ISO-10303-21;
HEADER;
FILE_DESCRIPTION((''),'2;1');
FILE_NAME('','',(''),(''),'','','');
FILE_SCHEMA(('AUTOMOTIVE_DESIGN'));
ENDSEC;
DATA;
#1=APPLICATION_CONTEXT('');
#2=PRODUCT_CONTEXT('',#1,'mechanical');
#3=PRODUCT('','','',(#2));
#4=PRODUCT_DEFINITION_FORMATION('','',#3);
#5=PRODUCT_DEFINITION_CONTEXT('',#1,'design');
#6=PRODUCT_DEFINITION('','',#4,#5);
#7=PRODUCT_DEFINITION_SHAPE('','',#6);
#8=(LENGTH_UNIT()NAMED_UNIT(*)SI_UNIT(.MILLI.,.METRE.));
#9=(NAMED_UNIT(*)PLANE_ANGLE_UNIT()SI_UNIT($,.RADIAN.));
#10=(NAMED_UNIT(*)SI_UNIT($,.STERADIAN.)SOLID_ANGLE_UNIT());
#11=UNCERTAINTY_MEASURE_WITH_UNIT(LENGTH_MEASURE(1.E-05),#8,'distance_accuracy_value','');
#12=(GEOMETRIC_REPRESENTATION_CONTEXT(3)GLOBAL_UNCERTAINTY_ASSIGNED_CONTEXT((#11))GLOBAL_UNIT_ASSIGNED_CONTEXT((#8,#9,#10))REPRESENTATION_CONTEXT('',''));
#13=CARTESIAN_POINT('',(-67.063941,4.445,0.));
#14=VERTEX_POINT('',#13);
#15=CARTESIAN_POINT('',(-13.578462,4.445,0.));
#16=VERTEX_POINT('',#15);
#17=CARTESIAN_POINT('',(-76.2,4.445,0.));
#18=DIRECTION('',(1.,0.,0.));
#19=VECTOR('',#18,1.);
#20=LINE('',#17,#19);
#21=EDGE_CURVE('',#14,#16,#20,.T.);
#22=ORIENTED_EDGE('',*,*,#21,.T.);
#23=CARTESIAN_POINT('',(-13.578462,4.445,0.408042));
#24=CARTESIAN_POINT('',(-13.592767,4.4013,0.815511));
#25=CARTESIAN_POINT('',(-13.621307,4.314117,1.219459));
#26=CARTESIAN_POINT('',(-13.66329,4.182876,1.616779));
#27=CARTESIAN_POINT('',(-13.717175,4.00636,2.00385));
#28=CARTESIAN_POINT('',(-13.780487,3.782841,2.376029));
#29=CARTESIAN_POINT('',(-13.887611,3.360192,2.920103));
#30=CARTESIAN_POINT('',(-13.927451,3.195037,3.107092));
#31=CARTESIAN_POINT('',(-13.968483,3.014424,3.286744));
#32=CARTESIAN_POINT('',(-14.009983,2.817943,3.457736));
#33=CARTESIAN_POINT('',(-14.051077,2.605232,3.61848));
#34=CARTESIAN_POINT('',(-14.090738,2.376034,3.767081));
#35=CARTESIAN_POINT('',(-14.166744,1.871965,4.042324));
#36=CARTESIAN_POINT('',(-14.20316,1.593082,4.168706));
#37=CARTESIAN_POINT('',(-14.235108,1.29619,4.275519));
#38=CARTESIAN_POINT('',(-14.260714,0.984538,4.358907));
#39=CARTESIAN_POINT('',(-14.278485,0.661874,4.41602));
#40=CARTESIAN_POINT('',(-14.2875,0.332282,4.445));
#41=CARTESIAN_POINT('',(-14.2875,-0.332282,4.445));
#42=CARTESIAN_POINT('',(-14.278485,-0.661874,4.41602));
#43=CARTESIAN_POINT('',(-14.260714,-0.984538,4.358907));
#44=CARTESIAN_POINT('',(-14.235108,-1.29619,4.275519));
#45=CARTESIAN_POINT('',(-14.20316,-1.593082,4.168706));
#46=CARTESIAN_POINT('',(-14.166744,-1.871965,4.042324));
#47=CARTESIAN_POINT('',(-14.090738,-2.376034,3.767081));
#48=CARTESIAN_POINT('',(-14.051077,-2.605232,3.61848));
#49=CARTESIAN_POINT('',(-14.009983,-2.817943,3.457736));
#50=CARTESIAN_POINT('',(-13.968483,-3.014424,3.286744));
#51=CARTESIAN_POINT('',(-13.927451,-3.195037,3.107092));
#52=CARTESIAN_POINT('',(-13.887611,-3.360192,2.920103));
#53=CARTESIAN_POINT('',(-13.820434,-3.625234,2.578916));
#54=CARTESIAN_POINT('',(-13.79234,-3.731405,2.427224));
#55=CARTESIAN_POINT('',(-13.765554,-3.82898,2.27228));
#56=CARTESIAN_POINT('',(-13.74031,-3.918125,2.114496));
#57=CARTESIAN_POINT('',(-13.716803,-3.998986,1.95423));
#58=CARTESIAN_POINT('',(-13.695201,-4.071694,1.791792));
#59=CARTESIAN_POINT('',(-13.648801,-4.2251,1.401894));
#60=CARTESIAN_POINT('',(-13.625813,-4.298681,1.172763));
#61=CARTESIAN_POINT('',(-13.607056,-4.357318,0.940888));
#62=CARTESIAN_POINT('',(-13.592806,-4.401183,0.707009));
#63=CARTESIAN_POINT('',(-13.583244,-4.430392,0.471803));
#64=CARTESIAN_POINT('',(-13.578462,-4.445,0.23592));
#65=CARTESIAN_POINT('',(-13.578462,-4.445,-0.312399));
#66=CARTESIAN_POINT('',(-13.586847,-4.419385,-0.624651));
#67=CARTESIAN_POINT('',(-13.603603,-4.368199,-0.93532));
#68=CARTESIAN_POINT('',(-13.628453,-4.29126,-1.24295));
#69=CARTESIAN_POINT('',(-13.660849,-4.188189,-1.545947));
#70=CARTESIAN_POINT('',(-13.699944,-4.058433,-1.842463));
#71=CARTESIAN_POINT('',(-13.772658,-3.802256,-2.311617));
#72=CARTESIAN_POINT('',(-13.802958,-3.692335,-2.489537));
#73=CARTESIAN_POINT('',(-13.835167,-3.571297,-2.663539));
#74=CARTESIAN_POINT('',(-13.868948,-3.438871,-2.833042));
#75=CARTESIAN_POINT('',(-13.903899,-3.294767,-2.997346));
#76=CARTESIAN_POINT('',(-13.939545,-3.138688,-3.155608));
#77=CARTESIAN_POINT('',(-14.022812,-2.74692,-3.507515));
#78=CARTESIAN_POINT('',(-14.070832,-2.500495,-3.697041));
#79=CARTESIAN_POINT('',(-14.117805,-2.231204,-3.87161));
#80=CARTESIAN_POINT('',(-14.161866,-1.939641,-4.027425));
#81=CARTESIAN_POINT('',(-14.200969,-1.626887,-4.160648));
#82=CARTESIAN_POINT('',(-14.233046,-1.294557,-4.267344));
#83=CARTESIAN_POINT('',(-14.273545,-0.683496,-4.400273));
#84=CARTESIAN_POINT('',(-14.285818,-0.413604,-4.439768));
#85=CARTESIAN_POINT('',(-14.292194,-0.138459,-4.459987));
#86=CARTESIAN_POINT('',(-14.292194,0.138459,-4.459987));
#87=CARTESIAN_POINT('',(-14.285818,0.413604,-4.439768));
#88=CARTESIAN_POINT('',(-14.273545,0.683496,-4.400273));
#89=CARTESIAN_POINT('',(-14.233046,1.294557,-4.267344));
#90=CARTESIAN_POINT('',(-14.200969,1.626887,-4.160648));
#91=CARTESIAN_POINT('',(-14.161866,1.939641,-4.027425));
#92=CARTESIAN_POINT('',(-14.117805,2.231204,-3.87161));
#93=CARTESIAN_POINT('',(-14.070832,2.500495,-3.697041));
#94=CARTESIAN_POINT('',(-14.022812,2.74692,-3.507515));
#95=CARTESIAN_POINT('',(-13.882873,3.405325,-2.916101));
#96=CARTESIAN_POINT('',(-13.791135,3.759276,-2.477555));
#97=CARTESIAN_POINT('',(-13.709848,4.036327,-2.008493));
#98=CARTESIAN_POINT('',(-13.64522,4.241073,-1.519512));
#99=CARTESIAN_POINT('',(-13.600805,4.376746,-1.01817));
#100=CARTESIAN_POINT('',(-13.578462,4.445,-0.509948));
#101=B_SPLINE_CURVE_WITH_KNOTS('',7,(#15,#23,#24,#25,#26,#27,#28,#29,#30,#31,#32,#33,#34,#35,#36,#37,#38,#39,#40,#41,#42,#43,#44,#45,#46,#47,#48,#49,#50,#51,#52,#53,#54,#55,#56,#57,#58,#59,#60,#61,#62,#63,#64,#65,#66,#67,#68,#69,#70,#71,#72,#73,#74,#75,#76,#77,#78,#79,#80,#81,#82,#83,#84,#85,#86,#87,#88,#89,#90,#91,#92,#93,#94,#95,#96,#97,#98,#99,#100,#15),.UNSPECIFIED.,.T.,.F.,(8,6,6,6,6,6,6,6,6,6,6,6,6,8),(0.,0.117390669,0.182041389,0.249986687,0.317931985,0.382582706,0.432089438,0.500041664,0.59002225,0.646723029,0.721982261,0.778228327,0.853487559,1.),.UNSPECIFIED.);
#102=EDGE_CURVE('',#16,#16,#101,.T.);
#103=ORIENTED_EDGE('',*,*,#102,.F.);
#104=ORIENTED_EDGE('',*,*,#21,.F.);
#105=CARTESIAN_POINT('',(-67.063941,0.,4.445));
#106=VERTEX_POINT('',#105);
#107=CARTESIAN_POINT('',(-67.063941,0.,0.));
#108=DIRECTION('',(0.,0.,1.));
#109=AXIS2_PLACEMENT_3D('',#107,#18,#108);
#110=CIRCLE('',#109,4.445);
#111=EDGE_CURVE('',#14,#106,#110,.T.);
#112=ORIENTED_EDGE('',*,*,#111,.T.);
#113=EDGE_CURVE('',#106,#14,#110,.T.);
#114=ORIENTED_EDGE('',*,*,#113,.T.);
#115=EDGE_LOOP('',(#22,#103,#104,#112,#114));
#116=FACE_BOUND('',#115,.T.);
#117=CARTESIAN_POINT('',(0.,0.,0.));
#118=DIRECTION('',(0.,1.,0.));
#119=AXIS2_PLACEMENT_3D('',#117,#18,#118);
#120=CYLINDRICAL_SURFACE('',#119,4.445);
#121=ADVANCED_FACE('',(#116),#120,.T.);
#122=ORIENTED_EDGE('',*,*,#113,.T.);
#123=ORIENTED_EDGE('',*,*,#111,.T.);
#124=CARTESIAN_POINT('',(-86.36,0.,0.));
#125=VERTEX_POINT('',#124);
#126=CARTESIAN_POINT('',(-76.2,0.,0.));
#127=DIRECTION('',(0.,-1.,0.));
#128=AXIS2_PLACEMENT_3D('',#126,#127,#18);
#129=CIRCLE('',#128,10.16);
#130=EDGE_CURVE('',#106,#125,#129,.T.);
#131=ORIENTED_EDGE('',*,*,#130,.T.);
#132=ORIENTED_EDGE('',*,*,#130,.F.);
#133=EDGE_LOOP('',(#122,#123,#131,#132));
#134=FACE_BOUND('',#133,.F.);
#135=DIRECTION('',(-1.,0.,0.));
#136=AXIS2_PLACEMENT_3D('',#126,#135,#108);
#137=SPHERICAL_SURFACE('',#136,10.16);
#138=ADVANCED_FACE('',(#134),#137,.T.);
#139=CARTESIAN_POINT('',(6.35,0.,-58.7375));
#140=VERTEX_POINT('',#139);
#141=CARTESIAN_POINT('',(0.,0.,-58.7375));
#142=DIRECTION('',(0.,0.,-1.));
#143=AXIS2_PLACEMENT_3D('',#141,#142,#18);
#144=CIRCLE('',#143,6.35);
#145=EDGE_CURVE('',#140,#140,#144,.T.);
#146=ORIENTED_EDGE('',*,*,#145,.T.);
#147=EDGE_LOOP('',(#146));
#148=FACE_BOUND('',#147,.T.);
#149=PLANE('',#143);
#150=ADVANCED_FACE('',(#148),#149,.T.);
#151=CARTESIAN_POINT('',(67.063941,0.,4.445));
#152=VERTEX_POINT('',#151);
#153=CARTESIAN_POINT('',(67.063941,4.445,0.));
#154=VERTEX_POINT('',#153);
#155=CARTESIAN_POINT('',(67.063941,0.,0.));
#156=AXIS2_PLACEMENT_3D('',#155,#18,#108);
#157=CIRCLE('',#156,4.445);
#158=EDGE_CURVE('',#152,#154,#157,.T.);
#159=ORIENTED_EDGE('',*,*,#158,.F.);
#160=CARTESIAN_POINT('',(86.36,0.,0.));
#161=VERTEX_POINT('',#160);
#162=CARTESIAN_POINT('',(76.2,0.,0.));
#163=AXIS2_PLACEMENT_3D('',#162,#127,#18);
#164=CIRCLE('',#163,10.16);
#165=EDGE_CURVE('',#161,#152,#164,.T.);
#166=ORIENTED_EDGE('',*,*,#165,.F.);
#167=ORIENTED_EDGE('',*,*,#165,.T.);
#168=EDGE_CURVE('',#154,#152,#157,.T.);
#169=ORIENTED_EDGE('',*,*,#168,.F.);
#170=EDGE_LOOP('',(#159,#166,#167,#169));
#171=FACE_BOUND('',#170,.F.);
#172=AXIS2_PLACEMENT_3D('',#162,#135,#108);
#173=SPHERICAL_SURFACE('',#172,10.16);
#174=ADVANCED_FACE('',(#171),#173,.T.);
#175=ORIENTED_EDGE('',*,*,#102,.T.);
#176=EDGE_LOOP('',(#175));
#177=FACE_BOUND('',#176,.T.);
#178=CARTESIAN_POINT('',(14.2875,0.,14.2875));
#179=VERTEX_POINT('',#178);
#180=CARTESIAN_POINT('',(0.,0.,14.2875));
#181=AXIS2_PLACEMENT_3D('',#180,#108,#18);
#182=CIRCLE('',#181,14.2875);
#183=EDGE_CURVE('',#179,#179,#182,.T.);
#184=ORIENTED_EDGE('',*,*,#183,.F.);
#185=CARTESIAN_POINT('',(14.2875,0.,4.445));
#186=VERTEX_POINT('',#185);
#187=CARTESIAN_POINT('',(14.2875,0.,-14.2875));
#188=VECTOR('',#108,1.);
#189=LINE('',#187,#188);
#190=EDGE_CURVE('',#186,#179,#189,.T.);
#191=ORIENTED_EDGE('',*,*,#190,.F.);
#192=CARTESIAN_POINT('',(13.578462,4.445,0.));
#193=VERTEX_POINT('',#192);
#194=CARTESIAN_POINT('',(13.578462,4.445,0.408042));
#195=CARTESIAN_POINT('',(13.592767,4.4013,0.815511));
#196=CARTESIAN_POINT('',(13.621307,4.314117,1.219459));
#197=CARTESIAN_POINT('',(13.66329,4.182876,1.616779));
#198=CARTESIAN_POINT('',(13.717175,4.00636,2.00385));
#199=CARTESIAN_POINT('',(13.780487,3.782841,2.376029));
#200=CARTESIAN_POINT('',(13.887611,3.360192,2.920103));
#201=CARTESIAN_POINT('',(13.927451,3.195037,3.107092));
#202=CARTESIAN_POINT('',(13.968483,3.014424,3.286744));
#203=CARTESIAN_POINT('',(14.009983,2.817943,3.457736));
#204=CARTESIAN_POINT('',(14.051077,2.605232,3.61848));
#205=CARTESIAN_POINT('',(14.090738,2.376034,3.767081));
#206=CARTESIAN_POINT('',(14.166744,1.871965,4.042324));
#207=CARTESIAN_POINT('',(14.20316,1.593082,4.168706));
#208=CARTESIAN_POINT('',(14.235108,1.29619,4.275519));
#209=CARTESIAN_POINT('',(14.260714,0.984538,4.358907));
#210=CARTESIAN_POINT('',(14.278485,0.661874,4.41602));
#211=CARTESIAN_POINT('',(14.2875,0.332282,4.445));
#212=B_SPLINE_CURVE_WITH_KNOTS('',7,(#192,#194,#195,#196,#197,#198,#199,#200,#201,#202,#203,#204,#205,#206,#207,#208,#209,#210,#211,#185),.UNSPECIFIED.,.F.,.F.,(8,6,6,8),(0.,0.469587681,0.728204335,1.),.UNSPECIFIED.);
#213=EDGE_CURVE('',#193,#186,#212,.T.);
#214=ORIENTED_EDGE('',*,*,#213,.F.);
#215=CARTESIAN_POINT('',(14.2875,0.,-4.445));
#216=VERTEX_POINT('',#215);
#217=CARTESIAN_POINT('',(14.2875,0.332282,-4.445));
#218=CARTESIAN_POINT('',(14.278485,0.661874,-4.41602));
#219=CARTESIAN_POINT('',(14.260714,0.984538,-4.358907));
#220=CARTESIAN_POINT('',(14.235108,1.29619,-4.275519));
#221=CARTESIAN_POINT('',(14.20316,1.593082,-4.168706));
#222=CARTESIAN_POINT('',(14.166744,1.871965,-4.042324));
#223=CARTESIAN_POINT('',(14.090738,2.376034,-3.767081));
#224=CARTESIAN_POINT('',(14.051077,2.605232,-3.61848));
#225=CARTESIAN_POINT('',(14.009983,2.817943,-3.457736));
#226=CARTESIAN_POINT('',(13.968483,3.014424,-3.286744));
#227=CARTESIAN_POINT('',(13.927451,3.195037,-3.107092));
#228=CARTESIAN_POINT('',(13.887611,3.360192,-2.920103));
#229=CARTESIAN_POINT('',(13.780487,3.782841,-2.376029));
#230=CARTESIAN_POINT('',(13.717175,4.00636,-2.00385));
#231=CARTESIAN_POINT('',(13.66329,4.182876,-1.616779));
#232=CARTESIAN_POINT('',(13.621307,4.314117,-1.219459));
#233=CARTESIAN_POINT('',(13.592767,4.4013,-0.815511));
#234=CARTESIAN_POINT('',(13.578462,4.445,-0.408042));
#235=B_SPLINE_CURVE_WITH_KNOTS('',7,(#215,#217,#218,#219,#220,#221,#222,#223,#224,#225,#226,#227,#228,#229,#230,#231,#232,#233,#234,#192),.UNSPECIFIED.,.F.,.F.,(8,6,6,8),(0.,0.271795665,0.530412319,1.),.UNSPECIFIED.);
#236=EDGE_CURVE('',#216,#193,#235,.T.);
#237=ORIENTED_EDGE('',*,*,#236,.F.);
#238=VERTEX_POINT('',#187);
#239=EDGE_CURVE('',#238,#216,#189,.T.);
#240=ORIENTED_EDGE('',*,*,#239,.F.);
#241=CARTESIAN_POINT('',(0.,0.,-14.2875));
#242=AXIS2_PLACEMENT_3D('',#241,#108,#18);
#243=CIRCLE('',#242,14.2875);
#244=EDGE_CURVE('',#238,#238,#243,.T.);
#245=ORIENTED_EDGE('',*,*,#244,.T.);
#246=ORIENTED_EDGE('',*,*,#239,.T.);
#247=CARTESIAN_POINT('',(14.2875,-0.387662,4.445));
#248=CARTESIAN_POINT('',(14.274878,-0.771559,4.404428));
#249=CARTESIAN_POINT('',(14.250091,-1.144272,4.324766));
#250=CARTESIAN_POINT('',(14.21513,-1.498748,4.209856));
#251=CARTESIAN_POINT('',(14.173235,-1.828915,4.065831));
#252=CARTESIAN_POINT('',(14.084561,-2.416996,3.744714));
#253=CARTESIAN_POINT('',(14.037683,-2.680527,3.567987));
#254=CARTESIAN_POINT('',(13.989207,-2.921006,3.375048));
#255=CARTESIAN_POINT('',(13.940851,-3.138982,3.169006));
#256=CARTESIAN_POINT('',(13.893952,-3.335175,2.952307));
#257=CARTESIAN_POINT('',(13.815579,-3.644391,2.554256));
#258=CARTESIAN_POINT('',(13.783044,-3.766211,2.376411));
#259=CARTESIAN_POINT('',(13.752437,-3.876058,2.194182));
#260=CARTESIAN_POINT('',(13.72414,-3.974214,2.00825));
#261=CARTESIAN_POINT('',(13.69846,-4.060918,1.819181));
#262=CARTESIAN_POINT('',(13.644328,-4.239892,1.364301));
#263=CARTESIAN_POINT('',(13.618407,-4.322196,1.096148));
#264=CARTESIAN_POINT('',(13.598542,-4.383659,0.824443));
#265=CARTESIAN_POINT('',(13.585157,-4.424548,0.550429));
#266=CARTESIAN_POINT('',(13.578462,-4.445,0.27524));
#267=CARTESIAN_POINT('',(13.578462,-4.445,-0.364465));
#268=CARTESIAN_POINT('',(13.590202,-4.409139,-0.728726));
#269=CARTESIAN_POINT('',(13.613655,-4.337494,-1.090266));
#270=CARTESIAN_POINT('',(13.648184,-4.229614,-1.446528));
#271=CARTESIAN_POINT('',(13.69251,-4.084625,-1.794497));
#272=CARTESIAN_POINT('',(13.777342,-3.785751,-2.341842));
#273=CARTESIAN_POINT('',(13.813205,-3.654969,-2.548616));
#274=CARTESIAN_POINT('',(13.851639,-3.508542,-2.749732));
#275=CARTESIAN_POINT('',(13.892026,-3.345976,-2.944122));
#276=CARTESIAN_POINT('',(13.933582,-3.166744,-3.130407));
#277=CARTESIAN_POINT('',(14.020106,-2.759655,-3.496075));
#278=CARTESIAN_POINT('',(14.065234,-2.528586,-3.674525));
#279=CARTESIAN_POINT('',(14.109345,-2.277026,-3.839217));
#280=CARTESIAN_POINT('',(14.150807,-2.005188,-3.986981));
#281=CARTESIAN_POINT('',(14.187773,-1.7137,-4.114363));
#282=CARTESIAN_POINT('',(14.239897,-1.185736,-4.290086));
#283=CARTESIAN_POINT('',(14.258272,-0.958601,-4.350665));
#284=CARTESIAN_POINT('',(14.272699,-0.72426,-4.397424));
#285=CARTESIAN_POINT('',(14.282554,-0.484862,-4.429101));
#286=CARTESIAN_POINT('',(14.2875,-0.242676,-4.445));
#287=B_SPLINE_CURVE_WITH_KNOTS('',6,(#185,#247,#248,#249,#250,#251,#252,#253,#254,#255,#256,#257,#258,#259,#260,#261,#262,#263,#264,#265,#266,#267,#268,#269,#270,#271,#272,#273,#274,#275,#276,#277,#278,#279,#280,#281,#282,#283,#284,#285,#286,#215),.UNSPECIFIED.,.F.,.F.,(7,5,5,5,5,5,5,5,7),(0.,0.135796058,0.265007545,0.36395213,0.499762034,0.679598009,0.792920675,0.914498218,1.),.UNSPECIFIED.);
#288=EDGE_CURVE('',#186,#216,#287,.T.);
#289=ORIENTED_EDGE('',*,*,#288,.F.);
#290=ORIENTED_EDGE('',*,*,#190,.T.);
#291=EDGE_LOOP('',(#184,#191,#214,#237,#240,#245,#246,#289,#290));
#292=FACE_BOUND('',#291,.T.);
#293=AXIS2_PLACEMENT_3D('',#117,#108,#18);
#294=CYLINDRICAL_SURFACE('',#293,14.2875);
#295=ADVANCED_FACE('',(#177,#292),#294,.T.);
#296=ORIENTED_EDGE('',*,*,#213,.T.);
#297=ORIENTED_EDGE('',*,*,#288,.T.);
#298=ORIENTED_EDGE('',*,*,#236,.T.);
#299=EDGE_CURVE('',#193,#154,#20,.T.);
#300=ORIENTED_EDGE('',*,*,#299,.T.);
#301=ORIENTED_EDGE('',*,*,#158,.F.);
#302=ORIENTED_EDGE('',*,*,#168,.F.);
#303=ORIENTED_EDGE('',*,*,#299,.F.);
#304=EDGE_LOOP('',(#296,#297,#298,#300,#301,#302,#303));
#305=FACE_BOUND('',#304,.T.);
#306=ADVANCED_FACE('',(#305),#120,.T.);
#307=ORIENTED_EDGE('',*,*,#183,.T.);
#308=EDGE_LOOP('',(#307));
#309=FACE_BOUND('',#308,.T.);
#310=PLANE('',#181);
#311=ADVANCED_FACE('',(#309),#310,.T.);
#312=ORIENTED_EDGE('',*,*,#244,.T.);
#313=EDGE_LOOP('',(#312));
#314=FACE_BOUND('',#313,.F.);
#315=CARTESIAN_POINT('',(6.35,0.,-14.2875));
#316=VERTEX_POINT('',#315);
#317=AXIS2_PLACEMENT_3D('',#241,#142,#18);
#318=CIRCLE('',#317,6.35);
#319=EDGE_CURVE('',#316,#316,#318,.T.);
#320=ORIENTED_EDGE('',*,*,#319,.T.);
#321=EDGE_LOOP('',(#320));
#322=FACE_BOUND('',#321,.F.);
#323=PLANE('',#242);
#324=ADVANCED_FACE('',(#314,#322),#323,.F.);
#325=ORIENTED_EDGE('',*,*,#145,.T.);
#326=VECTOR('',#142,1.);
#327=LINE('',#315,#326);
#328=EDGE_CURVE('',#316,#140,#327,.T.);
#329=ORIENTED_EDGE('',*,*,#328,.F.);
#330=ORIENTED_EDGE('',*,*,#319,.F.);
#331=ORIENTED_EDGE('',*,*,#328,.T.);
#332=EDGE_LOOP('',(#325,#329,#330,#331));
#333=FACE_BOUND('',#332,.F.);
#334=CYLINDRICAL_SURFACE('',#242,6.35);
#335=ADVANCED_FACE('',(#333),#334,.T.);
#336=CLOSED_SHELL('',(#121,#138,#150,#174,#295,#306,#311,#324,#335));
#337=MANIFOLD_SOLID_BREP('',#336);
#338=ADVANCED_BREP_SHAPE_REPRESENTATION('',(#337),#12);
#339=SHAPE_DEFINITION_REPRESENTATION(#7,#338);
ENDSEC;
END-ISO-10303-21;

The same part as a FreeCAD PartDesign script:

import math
import FreeCAD as App
import Part
import Sketcher
from FreeCAD import Vector
Q = App.Units.Quantity

doc = App.newDocument("Part")
params = doc.addObject("Spreadsheet::Sheet", "Params")
for row, (alias, value) in enumerate([
    ("sketch1_diameter", "1.125 in"),
    ("pad1_length", "1.125 in"),
    ("sketch2_diameter", "0.5 in"),
    ("pad2_length", "1.75 in"),
    ("sketch3_diameter", "0.35 in"),
    ("pad3_length", "6 in"),
    ("sketch4_radius", "0.4 in"),
    ("revolution_angle", "360 deg"),
    ("sketch5_radius", "0.4 in"),
    ("revolution2_angle", "360 deg"),
], start=1):
    params.set(f"A{row}", alias)
    params.set(f"B{row}", "=" + value)
    params.setAlias(f"B{row}", alias)

body = doc.addObject("PartDesign::Body", "Body")

sketch1 = body.newObject("Sketcher::SketchObject", "Sketch")
sketch1.AttachmentSupport = (doc.getObject("XY_Plane"), [""])
sketch1.MapMode = "FlatFace"
sketch1.addGeometry(Part.Circle(Vector(0, 0, 0), Vector(0, 0, 1), 14), False)
sketch1.addConstraint([
    Sketcher.Constraint("Coincident", 0, 3, -1, 1),
    Sketcher.Constraint("Diameter", 0, Q("1.125 in")),
])
sketch1.setExpression("Constraints[1]", "Params.sketch1_diameter")
pad1 = body.newObject("PartDesign::Pad", "Pad")
pad1.Profile = sketch1
pad1.setExpression("Length", "Params.pad1_length")
pad1.Midplane = True

sketch2 = body.newObject("Sketcher::SketchObject", "Sketch001")
sketch2.AttachmentSupport = (doc.getObject("XY_Plane"), [""])
sketch2.MapMode = "FlatFace"
sketch2.AttachmentOffset = App.Placement(Vector(0, 0, -0.5625 * 25.4), App.Rotation())
sketch2.addGeometry(Part.Circle(Vector(0, 0, 0), Vector(0, 0, 1), 6), False)
sketch2.addConstraint([
    Sketcher.Constraint("Coincident", 0, 3, -1, 1),
    Sketcher.Constraint("Diameter", 0, Q("0.5 in")),
])
sketch2.setExpression("Constraints[1]", "Params.sketch2_diameter")
pad2 = body.newObject("PartDesign::Pad", "Pad001")
pad2.Profile = sketch2
pad2.setExpression("Length", "Params.pad2_length")
pad2.Reversed = True

sketch3 = body.newObject("Sketcher::SketchObject", "Sketch002")
sketch3.AttachmentSupport = (doc.getObject("YZ_Plane"), [""])
sketch3.MapMode = "FlatFace"
sketch3.addGeometry(Part.Circle(Vector(0, 0, 0), Vector(0, 0, 1), 4.4), False)
sketch3.addConstraint([
    Sketcher.Constraint("Coincident", 0, 3, -1, 1),
    Sketcher.Constraint("Diameter", 0, Q("0.35 in")),
])
sketch3.setExpression("Constraints[1]", "Params.sketch3_diameter")
pad3 = body.newObject("PartDesign::Pad", "Pad002")
pad3.Profile = sketch3
pad3.setExpression("Length", "Params.pad3_length")
pad3.Midplane = True

sketch4 = body.newObject("Sketcher::SketchObject", "Sketch003")
sketch4.AttachmentSupport = (doc.getObject("XZ_Plane"), [""])
sketch4.MapMode = "FlatFace"
sketch4.addGeometry([
    Part.LineSegment(Vector(-86, 0, 0), Vector(-66, 0, 0)),
    Part.ArcOfCircle(Part.Circle(Vector(-76, 0, 0), Vector(0, 0, 1), 10), math.radians(0), math.radians(180)),
], False)
sketch4.addConstraint([
    Sketcher.Constraint("Coincident", 0, 1, 1, 2),
    Sketcher.Constraint("Coincident", 1, 1, 0, 2),
    Sketcher.Constraint("Horizontal", 0),
    Sketcher.Constraint("PointOnObject", 1, 3, -1),
    Sketcher.Constraint("PointOnObject", 0, 1, -1),
    Sketcher.Constraint("Radius", 1, Q("0.4 in")),
    Sketcher.Constraint("DistanceX", 1, 3, -1, 1, Q("3 in")),
])
sketch4.setExpression("Constraints[5]", "Params.sketch4_radius")
revolution = body.newObject("PartDesign::Revolution", "Revolution")
revolution.Profile = sketch4
revolution.ReferenceAxis = (sketch4, ["H_Axis"])
revolution.setExpression("Angle", "Params.revolution_angle")

sketch5 = body.newObject("Sketcher::SketchObject", "Sketch004")
sketch5.AttachmentSupport = (doc.getObject("XZ_Plane"), [""])
sketch5.MapMode = "FlatFace"
sketch5.addGeometry([
    Part.LineSegment(Vector(66, 0, 0), Vector(86, 0, 0)),
    Part.ArcOfCircle(Part.Circle(Vector(76, 0, 0), Vector(0, 0, 1), 10), math.radians(0), math.radians(180)),
], False)
sketch5.addConstraint([
    Sketcher.Constraint("Coincident", 0, 1, 1, 2),
    Sketcher.Constraint("Coincident", 1, 1, 0, 2),
    Sketcher.Constraint("Horizontal", 0),
    Sketcher.Constraint("PointOnObject", 1, 3, -1),
    Sketcher.Constraint("PointOnObject", 0, 1, -1),
    Sketcher.Constraint("Radius", 1, Q("0.4 in")),
    Sketcher.Constraint("DistanceX", -1, 1, 1, 3, Q("3 in")),
])
sketch5.setExpression("Constraints[5]", "Params.sketch5_radius")
revolution2 = body.newObject("PartDesign::Revolution", "Revolution001")
revolution2.Profile = sketch5
revolution2.ReferenceAxis = (sketch5, ["H_Axis"])
revolution2.setExpression("Angle", "Params.revolution2_angle")

doc.recompute()
